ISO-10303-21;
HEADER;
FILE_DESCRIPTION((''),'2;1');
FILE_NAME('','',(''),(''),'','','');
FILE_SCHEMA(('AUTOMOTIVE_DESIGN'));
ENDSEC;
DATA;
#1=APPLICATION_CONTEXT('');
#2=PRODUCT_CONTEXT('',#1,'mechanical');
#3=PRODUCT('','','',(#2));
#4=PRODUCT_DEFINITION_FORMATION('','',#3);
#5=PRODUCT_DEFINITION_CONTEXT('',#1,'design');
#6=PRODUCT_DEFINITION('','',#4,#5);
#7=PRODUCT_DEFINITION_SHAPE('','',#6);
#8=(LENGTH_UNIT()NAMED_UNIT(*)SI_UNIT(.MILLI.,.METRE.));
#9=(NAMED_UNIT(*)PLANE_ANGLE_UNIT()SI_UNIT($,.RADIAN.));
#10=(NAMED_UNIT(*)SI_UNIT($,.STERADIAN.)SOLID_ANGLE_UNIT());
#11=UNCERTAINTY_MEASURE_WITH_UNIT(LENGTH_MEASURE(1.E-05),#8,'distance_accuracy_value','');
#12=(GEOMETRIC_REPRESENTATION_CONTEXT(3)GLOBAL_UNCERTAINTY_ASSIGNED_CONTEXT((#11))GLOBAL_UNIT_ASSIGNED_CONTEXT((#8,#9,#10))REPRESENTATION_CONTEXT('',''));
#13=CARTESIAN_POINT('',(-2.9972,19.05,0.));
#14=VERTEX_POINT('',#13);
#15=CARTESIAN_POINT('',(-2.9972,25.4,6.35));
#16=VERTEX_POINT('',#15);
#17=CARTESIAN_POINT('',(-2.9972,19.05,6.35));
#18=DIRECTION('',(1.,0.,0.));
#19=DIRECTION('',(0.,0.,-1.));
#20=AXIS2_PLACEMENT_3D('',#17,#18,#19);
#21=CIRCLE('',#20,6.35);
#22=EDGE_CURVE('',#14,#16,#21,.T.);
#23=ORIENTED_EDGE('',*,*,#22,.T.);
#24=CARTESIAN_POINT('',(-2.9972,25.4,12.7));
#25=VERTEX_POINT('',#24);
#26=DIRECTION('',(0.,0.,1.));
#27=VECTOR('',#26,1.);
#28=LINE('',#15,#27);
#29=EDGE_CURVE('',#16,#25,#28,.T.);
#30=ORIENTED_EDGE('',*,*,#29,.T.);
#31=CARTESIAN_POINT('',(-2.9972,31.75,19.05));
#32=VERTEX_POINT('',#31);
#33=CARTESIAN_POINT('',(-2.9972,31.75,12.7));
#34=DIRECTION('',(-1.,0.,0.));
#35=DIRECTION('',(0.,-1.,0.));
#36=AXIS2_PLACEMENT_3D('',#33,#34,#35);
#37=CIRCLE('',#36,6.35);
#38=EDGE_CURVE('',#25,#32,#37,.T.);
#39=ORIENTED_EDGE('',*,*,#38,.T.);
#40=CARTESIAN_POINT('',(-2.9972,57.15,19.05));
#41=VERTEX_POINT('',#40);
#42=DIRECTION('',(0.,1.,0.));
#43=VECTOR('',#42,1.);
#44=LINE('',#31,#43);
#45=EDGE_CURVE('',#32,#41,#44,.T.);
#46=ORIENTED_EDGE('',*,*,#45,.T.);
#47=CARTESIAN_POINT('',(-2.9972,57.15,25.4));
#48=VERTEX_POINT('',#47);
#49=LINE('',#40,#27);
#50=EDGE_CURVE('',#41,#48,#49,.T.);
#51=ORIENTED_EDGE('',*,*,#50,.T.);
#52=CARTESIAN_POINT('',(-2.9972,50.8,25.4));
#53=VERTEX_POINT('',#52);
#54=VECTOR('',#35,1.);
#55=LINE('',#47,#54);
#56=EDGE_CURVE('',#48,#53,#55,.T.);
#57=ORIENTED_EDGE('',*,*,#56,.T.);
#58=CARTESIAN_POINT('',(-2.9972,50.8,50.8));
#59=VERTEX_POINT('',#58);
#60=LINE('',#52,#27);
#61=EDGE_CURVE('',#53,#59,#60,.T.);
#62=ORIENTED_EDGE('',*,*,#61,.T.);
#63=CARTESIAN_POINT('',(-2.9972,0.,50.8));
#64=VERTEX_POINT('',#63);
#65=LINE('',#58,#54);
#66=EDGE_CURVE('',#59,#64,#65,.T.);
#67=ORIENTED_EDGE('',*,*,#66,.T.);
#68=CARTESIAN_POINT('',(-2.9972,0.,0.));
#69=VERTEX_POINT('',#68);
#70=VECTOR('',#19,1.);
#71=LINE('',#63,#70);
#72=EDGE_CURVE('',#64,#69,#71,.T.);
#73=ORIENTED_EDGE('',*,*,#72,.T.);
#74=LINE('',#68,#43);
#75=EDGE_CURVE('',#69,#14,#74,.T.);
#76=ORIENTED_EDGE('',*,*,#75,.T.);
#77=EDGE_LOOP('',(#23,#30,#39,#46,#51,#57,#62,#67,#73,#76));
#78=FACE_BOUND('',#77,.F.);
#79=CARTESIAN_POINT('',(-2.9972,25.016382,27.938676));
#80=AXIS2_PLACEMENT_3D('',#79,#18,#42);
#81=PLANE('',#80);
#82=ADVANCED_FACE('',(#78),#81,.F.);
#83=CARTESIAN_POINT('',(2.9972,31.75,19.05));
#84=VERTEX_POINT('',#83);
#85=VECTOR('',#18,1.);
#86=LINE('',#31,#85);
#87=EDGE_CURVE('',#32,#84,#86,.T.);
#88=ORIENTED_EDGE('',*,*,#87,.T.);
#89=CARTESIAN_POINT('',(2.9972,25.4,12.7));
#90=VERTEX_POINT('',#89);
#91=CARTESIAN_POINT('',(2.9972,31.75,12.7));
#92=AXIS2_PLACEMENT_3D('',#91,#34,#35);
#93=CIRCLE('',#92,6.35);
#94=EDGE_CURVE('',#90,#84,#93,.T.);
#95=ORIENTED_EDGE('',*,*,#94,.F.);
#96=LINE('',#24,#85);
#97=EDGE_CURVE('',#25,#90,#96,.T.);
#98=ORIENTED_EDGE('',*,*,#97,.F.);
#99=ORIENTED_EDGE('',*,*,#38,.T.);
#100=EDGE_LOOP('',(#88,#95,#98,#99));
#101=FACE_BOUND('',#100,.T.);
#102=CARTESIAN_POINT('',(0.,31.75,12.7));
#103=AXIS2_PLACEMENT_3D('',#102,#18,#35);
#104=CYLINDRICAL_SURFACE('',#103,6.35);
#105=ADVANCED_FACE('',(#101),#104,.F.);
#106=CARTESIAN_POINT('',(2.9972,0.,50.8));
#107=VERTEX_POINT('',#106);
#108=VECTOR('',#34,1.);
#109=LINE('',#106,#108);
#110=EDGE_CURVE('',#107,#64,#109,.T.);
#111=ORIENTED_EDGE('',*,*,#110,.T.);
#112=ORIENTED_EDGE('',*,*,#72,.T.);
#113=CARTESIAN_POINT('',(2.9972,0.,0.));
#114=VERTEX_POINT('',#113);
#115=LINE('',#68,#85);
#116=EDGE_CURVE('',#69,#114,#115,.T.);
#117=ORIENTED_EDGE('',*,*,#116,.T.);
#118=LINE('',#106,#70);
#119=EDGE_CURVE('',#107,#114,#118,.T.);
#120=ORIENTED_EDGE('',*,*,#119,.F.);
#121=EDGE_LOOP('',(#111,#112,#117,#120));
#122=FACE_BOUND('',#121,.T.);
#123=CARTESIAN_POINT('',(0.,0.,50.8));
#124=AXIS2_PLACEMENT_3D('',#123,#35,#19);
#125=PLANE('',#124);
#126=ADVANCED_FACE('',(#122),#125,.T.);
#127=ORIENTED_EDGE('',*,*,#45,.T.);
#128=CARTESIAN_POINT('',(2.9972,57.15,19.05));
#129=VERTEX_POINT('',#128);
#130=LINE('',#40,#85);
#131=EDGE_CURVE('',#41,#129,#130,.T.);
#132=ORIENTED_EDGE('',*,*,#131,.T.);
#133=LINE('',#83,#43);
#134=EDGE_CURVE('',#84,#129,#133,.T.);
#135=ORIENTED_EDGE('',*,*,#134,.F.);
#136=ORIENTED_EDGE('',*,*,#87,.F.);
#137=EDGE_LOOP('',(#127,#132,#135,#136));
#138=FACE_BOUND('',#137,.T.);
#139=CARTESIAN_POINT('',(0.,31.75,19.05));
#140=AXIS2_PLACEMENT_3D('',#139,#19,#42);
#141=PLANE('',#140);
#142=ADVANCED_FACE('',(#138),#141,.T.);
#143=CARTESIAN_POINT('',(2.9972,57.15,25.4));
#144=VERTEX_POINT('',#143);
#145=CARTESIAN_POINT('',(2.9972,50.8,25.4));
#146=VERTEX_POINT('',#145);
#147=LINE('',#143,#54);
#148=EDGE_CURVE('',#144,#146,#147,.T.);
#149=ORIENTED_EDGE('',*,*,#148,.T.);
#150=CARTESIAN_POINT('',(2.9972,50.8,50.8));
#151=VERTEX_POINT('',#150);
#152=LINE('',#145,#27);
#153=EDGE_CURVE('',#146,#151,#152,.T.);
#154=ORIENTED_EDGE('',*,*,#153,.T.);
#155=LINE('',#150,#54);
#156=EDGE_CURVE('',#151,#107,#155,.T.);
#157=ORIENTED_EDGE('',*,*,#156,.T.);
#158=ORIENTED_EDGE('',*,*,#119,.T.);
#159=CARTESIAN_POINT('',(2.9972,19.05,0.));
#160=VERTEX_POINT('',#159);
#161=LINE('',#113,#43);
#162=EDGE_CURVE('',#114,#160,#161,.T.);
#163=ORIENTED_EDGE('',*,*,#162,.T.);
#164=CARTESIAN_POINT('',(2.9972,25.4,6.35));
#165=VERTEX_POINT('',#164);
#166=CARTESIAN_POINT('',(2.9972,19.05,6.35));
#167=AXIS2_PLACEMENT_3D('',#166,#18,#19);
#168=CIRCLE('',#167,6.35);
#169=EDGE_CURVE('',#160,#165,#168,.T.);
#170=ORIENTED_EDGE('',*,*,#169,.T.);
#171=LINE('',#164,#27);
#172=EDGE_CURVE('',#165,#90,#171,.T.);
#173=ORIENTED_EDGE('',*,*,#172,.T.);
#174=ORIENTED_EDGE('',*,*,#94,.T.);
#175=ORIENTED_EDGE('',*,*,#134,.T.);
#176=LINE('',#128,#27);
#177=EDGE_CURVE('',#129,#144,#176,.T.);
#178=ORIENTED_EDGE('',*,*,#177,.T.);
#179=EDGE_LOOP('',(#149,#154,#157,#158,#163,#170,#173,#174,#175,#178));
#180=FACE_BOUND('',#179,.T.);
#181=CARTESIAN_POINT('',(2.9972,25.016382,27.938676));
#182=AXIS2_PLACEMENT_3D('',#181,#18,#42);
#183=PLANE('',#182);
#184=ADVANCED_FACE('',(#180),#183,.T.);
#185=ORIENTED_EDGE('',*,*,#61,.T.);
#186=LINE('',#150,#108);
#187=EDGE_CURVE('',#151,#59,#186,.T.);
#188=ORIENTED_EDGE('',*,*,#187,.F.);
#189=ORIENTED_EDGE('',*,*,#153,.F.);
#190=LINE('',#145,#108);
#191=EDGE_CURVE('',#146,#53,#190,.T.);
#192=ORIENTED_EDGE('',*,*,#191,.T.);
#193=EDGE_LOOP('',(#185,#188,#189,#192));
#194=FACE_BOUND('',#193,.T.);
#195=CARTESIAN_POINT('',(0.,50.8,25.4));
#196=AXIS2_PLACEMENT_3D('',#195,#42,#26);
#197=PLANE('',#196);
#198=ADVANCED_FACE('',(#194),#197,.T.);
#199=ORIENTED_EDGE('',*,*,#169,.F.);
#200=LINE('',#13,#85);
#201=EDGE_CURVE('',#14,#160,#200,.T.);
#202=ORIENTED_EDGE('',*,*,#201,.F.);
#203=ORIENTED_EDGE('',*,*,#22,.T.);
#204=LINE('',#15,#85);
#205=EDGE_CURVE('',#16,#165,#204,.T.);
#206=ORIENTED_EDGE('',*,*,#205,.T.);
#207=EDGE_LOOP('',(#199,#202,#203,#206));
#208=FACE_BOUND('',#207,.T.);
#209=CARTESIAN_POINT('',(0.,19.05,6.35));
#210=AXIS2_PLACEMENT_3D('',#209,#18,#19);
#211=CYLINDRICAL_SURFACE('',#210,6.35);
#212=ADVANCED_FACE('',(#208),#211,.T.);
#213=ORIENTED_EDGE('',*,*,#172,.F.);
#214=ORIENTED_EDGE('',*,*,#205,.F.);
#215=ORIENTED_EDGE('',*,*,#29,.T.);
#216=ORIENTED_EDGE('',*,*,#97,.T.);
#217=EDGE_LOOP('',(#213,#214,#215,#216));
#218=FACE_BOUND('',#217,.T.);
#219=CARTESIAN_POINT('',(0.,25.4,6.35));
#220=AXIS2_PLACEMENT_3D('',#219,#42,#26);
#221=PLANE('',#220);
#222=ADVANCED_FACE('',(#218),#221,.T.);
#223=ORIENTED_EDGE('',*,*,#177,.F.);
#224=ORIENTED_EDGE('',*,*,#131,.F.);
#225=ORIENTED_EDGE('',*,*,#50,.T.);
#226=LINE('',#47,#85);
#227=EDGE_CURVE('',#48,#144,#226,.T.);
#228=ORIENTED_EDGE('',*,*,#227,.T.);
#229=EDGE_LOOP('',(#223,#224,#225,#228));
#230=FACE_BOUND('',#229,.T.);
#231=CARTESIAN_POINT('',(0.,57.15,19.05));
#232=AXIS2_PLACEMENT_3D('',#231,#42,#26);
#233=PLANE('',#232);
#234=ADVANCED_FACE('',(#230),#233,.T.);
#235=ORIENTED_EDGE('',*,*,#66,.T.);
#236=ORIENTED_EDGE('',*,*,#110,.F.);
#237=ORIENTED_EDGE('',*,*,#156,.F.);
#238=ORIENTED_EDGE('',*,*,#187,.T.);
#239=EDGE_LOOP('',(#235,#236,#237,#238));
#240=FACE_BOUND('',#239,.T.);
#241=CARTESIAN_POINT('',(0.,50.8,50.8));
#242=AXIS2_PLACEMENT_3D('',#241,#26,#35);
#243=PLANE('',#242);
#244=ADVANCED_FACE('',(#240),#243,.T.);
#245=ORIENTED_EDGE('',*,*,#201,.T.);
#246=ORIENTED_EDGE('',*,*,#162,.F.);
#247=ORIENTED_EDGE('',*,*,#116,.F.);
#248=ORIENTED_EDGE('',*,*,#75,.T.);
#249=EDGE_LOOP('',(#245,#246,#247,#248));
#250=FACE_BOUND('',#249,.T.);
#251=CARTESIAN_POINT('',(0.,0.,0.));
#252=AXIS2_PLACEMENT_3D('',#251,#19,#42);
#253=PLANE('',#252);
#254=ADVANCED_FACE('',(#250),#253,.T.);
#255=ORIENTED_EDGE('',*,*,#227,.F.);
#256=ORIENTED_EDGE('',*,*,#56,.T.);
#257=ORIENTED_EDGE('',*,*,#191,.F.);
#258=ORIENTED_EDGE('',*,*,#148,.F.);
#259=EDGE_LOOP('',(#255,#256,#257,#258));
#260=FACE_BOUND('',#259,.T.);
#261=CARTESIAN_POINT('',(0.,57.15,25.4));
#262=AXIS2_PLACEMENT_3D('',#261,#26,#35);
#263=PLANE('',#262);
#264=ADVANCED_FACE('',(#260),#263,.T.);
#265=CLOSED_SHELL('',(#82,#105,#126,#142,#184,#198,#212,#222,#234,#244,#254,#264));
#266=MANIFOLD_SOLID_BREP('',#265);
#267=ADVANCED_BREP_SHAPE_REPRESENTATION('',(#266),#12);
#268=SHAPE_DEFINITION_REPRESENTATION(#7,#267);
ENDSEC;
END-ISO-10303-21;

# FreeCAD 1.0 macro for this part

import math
import FreeCAD as App
import Part
import Sketcher
from FreeCAD import Vector
Q = App.Units.Quantity

doc = App.newDocument("Part")
body = doc.addObject("PartDesign::Body", "Body")

# Sketch on YZ plane
sketch1 = body.newObject("Sketcher::SketchObject", "Sketch")
sketch1.AttachmentSupport = (doc.getObject("YZ_Plane"), [""])
sketch1.MapMode = "FlatFace"
sketch1.addGeometry(Part.LineSegment(Vector(0, 51, 0), Vector(0, 0, 0)), False)
sketch1.addGeometry(Part.LineSegment(Vector(0, 0, 0), Vector(19, 0, 0)), False)
sketch1.addGeometry(Part.ArcOfCircle(Part.Circle(Vector(19, 6, 0), Vector(0, 0, 1), 6), math.radians(-90), math.radians(0)), False)
sketch1.addGeometry(Part.LineSegment(Vector(25, 6, 0), Vector(25, 13, 0)), False)
sketch1.addGeometry(Part.ArcOfCircle(Part.Circle(Vector(32, 13, 0), Vector(0, 0, 1), 6), math.radians(90), math.radians(180)), False)
sketch1.addGeometry(Part.LineSegment(Vector(32, 19, 0), Vector(57, 19, 0)), False)
sketch1.addGeometry(Part.LineSegment(Vector(57, 19, 0), Vector(57, 25, 0)), False)
sketch1.addGeometry(Part.LineSegment(Vector(57, 25, 0), Vector(51, 25, 0)), False)
sketch1.addGeometry(Part.LineSegment(Vector(51, 25, 0), Vector(51, 51, 0)), False)
sketch1.addGeometry(Part.LineSegment(Vector(51, 51, 0), Vector(0, 51, 0)), False)
sketch1.addConstraint(Sketcher.Constraint("Coincident", 0, 2, 1, 1))
sketch1.addConstraint(Sketcher.Constraint("Tangent", 1, 2, 2, 1))
sketch1.addConstraint(Sketcher.Constraint("Tangent", 2, 2, 3, 1))
sketch1.addConstraint(Sketcher.Constraint("Tangent", 3, 2, 4, 2))
sketch1.addConstraint(Sketcher.Constraint("Tangent", 4, 1, 5, 1))
sketch1.addConstraint(Sketcher.Constraint("Coincident", 5, 2, 6, 1))
sketch1.addConstraint(Sketcher.Constraint("Coincident", 6, 2, 7, 1))
sketch1.addConstraint(Sketcher.Constraint("Coincident", 7, 2, 8, 1))
sketch1.addConstraint(Sketcher.Constraint("Coincident", 8, 2, 9, 1))
sketch1.addConstraint(Sketcher.Constraint("Coincident", 9, 2, 0, 1))
sketch1.addConstraint(Sketcher.Constraint("Vertical", 0))
sketch1.addConstraint(Sketcher.Constraint("Horizontal", 1))
sketch1.addConstraint(Sketcher.Constraint("Vertical", 3))
sketch1.addConstraint(Sketcher.Constraint("Horizontal", 5))
sketch1.addConstraint(Sketcher.Constraint("Vertical", 6))
sketch1.addConstraint(Sketcher.Constraint("Horizontal", 7))
sketch1.addConstraint(Sketcher.Constraint("Vertical", 8))
sketch1.addConstraint(Sketcher.Constraint("Horizontal", 9))
sketch1.addConstraint(Sketcher.Constraint("Coincident", 0, 2, -1, 1))
sketch1.addConstraint(Sketcher.Constraint("Equal", 2, 4))
sketch1.addConstraint(Sketcher.Constraint("Equal", 9, 0))
sketch1.addConstraint(Sketcher.Constraint("Equal", 7, 3))
sketch1.addConstraint(Sketcher.Constraint("Equal", 3, 6))
sketch1.addConstraint(Sketcher.Constraint("Equal", 5, 8))
sketch1.addConstraint(Sketcher.Constraint("DistanceX", 5, 1, 5, 2, Q("1 in")))
sketch1.addConstraint(Sketcher.Constraint("DistanceX", 9, 2, 9, 1, Q("2 in")))
sketch1.addConstraint(Sketcher.Constraint("Radius", 2, Q("0.25 in")))
pad1 = body.newObject("PartDesign::Pad", "Pad")
pad1.Profile = sketch1
pad1.Length = Q("0.236 in")
pad1.Midplane = True

doc.recompute()
